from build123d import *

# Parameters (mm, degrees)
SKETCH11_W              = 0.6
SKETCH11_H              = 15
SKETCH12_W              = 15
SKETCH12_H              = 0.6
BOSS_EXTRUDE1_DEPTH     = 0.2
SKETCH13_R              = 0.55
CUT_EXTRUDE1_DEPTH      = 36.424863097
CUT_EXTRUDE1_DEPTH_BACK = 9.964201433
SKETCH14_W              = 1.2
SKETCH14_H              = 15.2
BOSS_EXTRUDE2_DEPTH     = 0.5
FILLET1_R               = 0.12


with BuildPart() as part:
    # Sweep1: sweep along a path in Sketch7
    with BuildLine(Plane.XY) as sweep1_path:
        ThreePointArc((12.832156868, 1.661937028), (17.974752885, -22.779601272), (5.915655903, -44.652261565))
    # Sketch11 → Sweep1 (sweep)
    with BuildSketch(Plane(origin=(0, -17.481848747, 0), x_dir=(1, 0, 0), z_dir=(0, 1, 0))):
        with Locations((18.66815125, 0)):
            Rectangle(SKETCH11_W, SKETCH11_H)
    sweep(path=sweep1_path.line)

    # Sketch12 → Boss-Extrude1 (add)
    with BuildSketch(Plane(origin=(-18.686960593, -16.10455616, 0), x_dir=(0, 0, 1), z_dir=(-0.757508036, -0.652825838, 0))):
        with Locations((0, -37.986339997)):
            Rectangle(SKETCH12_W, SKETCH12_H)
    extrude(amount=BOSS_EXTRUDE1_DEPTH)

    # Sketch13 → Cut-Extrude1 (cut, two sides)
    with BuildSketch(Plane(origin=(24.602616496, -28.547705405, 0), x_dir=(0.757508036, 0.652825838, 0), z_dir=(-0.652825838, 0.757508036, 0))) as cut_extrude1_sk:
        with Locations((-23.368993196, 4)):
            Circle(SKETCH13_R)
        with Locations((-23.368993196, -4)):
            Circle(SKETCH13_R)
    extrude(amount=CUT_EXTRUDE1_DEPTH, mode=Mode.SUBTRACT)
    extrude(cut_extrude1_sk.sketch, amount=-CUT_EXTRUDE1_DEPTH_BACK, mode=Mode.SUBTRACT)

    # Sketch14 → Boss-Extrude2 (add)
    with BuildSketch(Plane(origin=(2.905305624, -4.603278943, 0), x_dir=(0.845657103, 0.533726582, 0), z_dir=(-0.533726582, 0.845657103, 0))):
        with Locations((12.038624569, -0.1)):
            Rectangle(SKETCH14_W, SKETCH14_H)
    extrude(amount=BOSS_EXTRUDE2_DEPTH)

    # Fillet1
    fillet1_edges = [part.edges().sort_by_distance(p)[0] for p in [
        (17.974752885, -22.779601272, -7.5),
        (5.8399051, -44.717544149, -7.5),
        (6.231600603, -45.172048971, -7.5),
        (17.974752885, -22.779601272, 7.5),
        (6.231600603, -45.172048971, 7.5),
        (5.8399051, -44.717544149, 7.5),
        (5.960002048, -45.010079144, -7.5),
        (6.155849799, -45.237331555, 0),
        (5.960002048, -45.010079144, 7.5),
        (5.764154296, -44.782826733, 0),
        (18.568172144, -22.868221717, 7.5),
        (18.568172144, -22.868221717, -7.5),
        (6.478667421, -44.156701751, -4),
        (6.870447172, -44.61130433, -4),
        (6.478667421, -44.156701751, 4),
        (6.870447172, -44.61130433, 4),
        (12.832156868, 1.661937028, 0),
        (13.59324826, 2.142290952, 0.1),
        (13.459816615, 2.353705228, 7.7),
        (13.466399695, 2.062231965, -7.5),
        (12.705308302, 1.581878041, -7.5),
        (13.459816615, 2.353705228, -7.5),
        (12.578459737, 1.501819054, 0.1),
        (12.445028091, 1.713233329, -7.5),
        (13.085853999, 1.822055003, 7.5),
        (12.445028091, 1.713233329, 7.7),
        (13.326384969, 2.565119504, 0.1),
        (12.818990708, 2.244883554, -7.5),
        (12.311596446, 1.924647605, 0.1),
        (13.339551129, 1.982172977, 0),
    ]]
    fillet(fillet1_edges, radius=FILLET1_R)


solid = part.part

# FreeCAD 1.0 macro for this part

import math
import FreeCAD as App
import Part
import Sketcher
Q = App.Units.Quantity


def edges_at(feature, points):
    """Names of the edges that pass closest to the given points."""
    edges = feature.Shape.Edges
    near = lambda p: min(range(len(edges)), key=lambda i: edges[i].distToShape(Part.Vertex(*p))[0])
    return sorted({f"Edge{near(p) + 1}" for p in points})


def add_polygon(sketch, points):
    """Adds a closed chain of lines whose ends are joined by coincident constraints."""
    first, n = sketch.GeometryCount, len(points)
    for a, b in zip(points, points[1:] + points[:1]):
        sketch.addGeometry(Part.LineSegment(App.Vector(*a, 0), App.Vector(*b, 0)), False)
    for i in range(n):
        sketch.addConstraint(Sketcher.Constraint("Coincident", first + i, 2, first + (i + 1) % n, 1))

doc = App.newDocument("Part")
body = doc.addObject("PartDesign::Body", "Body")

# Sketch on XZ plane
sketch1 = doc.addObject("Sketcher::SketchObject", "Sketch")
body.addObject(sketch1)
sketch1.AttachmentSupport = (doc.XZ_Plane, [""])
sketch1.MapMode = "FlatFace"
sketch1.AttachmentOffset = App.Placement(App.Vector(0, 0, 17.481849), App.Rotation())
add_polygon(sketch1, [(18.368151, -7.5), (18.368151, 7.5), (18.968151, 7.5), (18.968151, -7.5)])  # lines 0-3
sketch1.addConstraint(Sketcher.Constraint("Vertical", 0))
sketch1.addConstraint(Sketcher.Constraint("Horizontal", 1))
sketch1.addConstraint(Sketcher.Constraint("Vertical", 2))
sketch1.addConstraint(Sketcher.Constraint("Horizontal", 3))
sketch1.addConstraint(Sketcher.Constraint("DistanceY", 0, 1, 0, 2, Q("15 mm")))
sketch1.addConstraint(Sketcher.Constraint("DistanceX", 1, 1, 1, 2, Q("0.6 mm")))
sketch1.addConstraint(Sketcher.Constraint("DistanceY", -1, 1, 0, 2, Q("7.5 mm")))
sketch1.addConstraint(Sketcher.Constraint("DistanceX", -1, 1, 0, 2, Q("18.368151 mm")))

# Sketch on XY plane
sketch2 = doc.addObject("Sketcher::SketchObject", "Sketch001")
body.addObject(sketch2)
sketch2.AttachmentSupport = (doc.XY_Plane, [""])
sketch2.MapMode = "FlatFace"
sketch2.addGeometry(Part.ArcOfCircle(Part.Circle(App.Vector(-17.5, -17.481849, 0), App.Vector(0, 0, 1), 35.868151), math.radians(-49.245002), math.radians(32.257593)), False)
sketch2.addConstraint(Sketcher.Constraint("DistanceX", 0, 3, -1, 1, Q("17.5 mm")))
sketch2.addConstraint(Sketcher.Constraint("Radius", 0, Q("35.868151 mm")))
sketch2.addConstraint(Sketcher.Constraint("DistanceX", 0, 1, 0, 2, Q("6.916501 mm")))
sketch2.addConstraint(Sketcher.Constraint("DistanceY", 0, 1, 0, 2, Q("46.314199 mm")))
sketch2.addConstraint(Sketcher.Constraint("DistanceY", 0, 3, -1, 1, Q("17.481849 mm")))
doc.recompute()

additivepipe = doc.addObject("PartDesign::AdditivePipe", "AdditivePipe")
body.addObject(additivepipe)
additivepipe.Profile = sketch1
additivepipe.Spine = (sketch2, ["Edge1"])

# Sketch on an angled plane
sketch3 = doc.addObject("Sketcher::SketchObject", "Sketch002")
body.addObject(sketch3)
sketch3.Placement = App.Placement(App.Vector(-18.686961, -16.104556, 0), App.Rotation(App.Vector(0, 0, 1), App.Vector(-0.652825838, 0.757508036, 0), App.Vector(-0.757508036, -0.652825838, 0), "ZXY"))
add_polygon(sketch3, [(-7.5, -37.68634), (-7.5, -38.28634), (7.5, -38.28634), (7.5, -37.68634)])  # lines 0-3
sketch3.addConstraint(Sketcher.Constraint("Vertical", 0))
sketch3.addConstraint(Sketcher.Constraint("Horizontal", 1))
sketch3.addConstraint(Sketcher.Constraint("Vertical", 2))
sketch3.addConstraint(Sketcher.Constraint("Horizontal", 3))
sketch3.addConstraint(Sketcher.Constraint("DistanceX", 1, 1, 1, 2, Q("15 mm")))
sketch3.addConstraint(Sketcher.Constraint("DistanceY", 0, 2, 0, 1, Q("0.6 mm")))
sketch3.addConstraint(Sketcher.Constraint("DistanceX", 0, 2, -1, 1, Q("7.5 mm")))
sketch3.addConstraint(Sketcher.Constraint("DistanceY", 0, 2, -1, 1, Q("38.28634 mm")))
pad1 = doc.addObject("PartDesign::Pad", "Pad")
body.addObject(pad1)
pad1.Profile = sketch3
pad1.Length = 0.2

# Sketch on an angled plane
sketch4 = doc.addObject("Sketcher::SketchObject", "Sketch003")
body.addObject(sketch4)
sketch4.Placement = App.Placement(App.Vector(24.602616, -28.547705, 0), App.Rotation(App.Vector(0.757508036, 0.652825838, 0), App.Vector(0, 0, -0.999999999), App.Vector(-0.652825838, 0.757508036, 0), "ZXY"))
sketch4.addGeometry(Part.Circle(App.Vector(-23.368993, 4, 0), App.Vector(0, 0, 1), 0.55), False)
sketch4.addGeometry(Part.Circle(App.Vector(-23.368993, -4, 0), App.Vector(0, 0, 1), 0.55), False)
sketch4.addConstraint(Sketcher.Constraint("Equal", 0, 1))
sketch4.addConstraint(Sketcher.Constraint("Symmetric", 0, 3, 1, 3, -1))
sketch4.addConstraint(Sketcher.Constraint("Diameter", 0, Q("1.1 mm")))
sketch4.addConstraint(Sketcher.Constraint("DistanceY", -1, 1, 0, 3, Q("4 mm")))
sketch4.addConstraint(Sketcher.Constraint("DistanceX", 0, 3, -1, 1, Q("23.368993 mm")))
pocket1 = doc.addObject("PartDesign::Pocket", "Pocket")
body.addObject(pocket1)
pocket1.Profile = sketch4
pocket1.Type = "ThroughAll"
pocket1.Midplane = True

# Sketch on an angled plane
sketch5 = doc.addObject("Sketcher::SketchObject", "Sketch004")
body.addObject(sketch5)
sketch5.Placement = App.Placement(App.Vector(2.905306, -4.603279, 0), App.Rotation(App.Vector(0.845657103, 0.533726582, 0), App.Vector(0, 0, -1), App.Vector(-0.533726582, 0.845657103, 0), "ZXY"))
add_polygon(sketch5, [(11.438625, 7.5), (11.438625, -7.7), (12.638625, -7.7), (12.638625, 7.5)])  # lines 0-3
sketch5.addConstraint(Sketcher.Constraint("Vertical", 0))
sketch5.addConstraint(Sketcher.Constraint("Horizontal", 1))
sketch5.addConstraint(Sketcher.Constraint("Vertical", 2))
sketch5.addConstraint(Sketcher.Constraint("Horizontal", 3))
sketch5.addConstraint(Sketcher.Constraint("DistanceX", 1, 1, 1, 2, Q("1.2 mm")))
sketch5.addConstraint(Sketcher.Constraint("DistanceY", 0, 2, 0, 1, Q("15.2 mm")))
sketch5.addConstraint(Sketcher.Constraint("DistanceY", 0, 2, -1, 1, Q("7.7 mm")))
sketch5.addConstraint(Sketcher.Constraint("DistanceX", -1, 1, 0, 2, Q("11.438625 mm")))
pad2 = doc.addObject("PartDesign::Pad", "Pad001")
body.addObject(pad2)
pad2.Profile = sketch5
pad2.Length = 0.5
doc.recompute()

fillet = doc.addObject("PartDesign::Fillet", "Fillet")
body.addObject(fillet)
fillet.Base = (pad2, edges_at(pad2, [
    (17.975, -22.78, -7.5),
    (5.84, -44.718, -7.5),
    (6.232, -45.172, -7.5),
    (17.975, -22.78, 7.5),
    (6.232, -45.172, 7.5),
    (5.84, -44.718, 7.5),
    (5.96, -45.01, -7.5),
    (6.156, -45.237, 0),
    (5.96, -45.01, 7.5),
    (5.764, -44.783, 0),
    (18.568, -22.868, 7.5),
    (18.568, -22.868, -7.5),
    (6.479, -44.157, -4),
    (6.87, -44.611, -4),
    (6.479, -44.157, 4),
    (6.87, -44.611, 4),
    (12.832, 1.662, 0),
    (13.593, 2.142, 0.1),
    (13.46, 2.354, 7.7),
    (13.466, 2.062, -7.5),
    (12.705, 1.582, -7.5),
    (13.46, 2.354, -7.5),
    (12.578, 1.502, 0.1),
    (12.445, 1.713, -7.5),
    (13.086, 1.822, 7.5),
    (12.445, 1.713, 7.7),
    (13.326, 2.565, 0.1),
    (12.819, 2.245, -7.5),
    (12.312, 1.925, 0.1),
    (13.34, 1.982, 0),
]))
fillet.Radius = 0.12

doc.recompute()
